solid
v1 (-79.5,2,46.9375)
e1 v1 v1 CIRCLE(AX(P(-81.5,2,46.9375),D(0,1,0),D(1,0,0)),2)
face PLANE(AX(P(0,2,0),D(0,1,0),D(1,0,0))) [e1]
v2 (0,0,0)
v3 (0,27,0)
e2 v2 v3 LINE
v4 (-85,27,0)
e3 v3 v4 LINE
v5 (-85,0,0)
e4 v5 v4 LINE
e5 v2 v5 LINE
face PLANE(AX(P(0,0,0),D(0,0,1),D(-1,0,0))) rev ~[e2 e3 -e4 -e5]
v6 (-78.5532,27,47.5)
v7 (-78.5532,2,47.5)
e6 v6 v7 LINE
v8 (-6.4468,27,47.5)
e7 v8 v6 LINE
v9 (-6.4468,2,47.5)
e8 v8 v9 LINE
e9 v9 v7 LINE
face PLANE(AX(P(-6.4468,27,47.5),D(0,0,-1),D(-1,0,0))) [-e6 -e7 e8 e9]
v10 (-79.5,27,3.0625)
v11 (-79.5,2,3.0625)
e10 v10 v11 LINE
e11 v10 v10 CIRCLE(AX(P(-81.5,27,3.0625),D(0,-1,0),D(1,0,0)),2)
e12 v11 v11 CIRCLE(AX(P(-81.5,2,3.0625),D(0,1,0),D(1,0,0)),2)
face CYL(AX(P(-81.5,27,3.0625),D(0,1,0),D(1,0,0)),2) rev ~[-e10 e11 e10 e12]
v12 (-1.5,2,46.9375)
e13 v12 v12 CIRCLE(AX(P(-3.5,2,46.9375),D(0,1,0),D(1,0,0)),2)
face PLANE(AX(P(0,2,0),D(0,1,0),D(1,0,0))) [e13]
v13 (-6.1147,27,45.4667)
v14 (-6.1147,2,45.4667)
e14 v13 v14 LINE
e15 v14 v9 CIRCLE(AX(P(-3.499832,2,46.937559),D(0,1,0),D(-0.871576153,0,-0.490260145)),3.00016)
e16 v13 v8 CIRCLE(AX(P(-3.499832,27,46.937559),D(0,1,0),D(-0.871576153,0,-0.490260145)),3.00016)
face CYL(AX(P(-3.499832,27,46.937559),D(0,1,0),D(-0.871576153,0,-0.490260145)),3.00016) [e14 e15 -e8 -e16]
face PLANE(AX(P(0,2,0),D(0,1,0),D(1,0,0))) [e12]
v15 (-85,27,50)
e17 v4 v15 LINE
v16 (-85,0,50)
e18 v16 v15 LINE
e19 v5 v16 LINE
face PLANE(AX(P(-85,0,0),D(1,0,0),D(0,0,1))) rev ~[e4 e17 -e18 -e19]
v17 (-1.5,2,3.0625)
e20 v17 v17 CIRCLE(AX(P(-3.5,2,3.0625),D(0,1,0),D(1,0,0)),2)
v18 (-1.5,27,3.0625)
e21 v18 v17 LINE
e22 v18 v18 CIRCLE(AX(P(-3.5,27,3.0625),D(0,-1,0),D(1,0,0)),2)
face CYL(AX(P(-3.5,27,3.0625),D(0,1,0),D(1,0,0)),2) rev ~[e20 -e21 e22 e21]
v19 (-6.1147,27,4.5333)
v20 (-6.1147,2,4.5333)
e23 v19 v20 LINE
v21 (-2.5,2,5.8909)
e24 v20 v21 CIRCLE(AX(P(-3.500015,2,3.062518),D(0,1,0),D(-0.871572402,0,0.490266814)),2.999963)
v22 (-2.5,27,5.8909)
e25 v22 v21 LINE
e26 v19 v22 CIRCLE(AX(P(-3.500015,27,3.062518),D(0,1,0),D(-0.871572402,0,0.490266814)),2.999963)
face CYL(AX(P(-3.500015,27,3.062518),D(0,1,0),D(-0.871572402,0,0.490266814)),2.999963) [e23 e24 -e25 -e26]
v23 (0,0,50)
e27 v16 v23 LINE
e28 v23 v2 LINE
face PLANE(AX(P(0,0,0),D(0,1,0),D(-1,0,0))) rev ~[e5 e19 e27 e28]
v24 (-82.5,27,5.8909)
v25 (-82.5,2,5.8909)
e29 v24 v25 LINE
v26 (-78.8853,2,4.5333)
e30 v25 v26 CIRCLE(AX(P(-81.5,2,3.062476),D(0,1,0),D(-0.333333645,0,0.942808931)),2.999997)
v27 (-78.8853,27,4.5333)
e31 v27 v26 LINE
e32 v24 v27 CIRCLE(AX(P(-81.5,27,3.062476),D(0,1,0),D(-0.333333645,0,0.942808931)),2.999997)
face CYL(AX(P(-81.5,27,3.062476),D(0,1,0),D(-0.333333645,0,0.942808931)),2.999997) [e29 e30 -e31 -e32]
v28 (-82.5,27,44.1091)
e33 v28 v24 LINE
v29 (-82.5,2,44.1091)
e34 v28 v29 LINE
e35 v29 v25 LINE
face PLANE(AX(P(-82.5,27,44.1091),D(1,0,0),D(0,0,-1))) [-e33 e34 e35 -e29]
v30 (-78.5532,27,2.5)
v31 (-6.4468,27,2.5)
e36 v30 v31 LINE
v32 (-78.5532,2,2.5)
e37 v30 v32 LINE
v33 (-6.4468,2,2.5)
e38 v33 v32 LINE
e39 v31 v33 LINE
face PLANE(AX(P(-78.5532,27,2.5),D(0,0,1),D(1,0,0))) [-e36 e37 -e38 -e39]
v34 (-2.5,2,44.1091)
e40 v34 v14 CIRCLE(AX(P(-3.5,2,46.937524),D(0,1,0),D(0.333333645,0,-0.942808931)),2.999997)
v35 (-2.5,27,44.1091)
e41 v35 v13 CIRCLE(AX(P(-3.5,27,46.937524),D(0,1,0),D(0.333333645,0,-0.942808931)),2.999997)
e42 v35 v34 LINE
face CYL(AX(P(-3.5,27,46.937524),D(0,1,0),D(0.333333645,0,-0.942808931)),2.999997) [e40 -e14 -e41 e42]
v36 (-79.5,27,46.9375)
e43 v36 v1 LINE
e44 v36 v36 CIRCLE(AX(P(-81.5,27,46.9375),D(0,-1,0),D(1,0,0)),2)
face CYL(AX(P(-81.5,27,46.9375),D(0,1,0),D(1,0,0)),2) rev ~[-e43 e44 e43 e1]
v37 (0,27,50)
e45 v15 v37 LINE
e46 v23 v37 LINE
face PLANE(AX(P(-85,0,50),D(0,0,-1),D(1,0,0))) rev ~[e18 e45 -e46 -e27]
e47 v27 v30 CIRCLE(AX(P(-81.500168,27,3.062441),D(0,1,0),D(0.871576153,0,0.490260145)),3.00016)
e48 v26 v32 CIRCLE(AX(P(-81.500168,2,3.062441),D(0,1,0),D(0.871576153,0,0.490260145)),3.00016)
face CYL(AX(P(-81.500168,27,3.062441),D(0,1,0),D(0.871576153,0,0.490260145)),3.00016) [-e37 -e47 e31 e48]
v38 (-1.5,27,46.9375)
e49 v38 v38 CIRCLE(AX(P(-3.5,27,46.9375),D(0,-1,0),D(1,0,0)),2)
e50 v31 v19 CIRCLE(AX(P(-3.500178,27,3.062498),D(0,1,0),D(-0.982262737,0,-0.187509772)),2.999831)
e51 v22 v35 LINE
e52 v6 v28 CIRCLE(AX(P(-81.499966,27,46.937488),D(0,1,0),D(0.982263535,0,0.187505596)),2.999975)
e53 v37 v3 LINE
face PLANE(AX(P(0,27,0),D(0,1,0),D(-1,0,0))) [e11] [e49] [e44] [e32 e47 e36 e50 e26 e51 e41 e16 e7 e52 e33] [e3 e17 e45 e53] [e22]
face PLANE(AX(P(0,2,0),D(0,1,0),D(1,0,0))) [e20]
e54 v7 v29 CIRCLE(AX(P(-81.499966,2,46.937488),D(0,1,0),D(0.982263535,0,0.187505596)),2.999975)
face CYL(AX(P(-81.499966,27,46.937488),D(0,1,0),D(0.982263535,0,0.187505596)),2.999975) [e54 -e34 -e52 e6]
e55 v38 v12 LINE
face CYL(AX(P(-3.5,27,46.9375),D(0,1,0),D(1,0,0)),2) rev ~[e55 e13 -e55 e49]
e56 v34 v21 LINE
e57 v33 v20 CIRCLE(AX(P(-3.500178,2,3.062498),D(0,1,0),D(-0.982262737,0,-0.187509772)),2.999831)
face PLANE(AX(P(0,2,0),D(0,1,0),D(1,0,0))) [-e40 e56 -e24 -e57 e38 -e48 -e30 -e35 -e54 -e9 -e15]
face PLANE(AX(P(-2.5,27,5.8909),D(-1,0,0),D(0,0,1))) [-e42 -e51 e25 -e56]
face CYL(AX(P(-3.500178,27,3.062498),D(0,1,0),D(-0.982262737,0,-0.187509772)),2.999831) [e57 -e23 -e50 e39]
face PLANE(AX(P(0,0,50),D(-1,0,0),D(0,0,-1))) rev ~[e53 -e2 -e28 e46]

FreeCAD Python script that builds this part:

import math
import FreeCAD as App
import Part
import Sketcher
from FreeCAD import Vector
Q = App.Units.Quantity

doc = App.newDocument("Part")
body = doc.addObject("PartDesign::Body", "Body")

# Sketch on XZ plane
sketch1 = doc.addObject("Sketcher::SketchObject", "Sketch")
body.addObject(sketch1)
sketch1.AttachmentSupport = (doc.XZ_Plane, [""])
sketch1.MapMode = "FlatFace"
sketch1.addGeometry([
    Part.LineSegment(Vector(0, 50, 0), Vector(0, 0, 0)),
    Part.LineSegment(Vector(0, 0, 0), Vector(-85, 0, 0)),
    Part.LineSegment(Vector(-85, 0, 0), Vector(-85, 50, 0)),
    Part.LineSegment(Vector(-85, 50, 0), Vector(0, 50, 0)),
], False)
sketch1.addConstraint([
    Sketcher.Constraint("Coincident", 0, 2, 1, 1),
    Sketcher.Constraint("Coincident", 1, 2, 2, 1),
    Sketcher.Constraint("Coincident", 2, 2, 3, 1),
    Sketcher.Constraint("Coincident", 3, 2, 0, 1),
    Sketcher.Constraint("Vertical", 0),
    Sketcher.Constraint("Horizontal", 1),
    Sketcher.Constraint("Vertical", 2),
    Sketcher.Constraint("Horizontal", 3),
    Sketcher.Constraint("Coincident", 0, 2, -1, 1),
    Sketcher.Constraint("DistanceX", 1, 2, 1, 1, Q("85 mm")),
    Sketcher.Constraint("DistanceY", 0, 2, 0, 1, Q("50 mm")),
])
pad1 = doc.addObject("PartDesign::Pad", "Pad")
body.addObject(pad1)
pad1.Profile = sketch1
pad1.Length = 27
pad1.Reversed = True

# Sketch on XZ plane
sketch2 = doc.addObject("Sketcher::SketchObject", "Sketch001")
body.addObject(sketch2)
sketch2.AttachmentSupport = (doc.XZ_Plane, [""])
sketch2.MapMode = "FlatFace"
sketch2.AttachmentOffset = App.Placement(Vector(0, 0, -27), App.Rotation())
sketch2.addGeometry([
    Part.Circle(Vector(-81.5, 3.1, 0), Vector(0, 0, 1), 2),  # 0
    Part.LineSegment(Vector(-6.4, 2.5, 0), Vector(-78.6, 2.5, 0)),  # 1
    Part.ArcOfCircle(Part.Circle(Vector(-81.5, 3.1, 0), Vector(0, 0, 1), 3), math.radians(-11), math.radians(29)),  # 2
    Part.ArcOfCircle(Part.Circle(Vector(-81.5, 3.1, 0), Vector(0, 0, 1), 3), math.radians(29), math.radians(109)),  # 3
    Part.LineSegment(Vector(-82.5, 5.9, 0), Vector(-82.5, 44.1, 0)),  # 4
    Part.ArcOfCircle(Part.Circle(Vector(-81.5, 46.9, 0), Vector(0, 0, 1), 3), math.radians(-109), math.radians(11)),  # 5
    Part.LineSegment(Vector(-78.6, 47.5, 0), Vector(-6.4, 47.5, 0)),  # 6
    Part.ArcOfCircle(Part.Circle(Vector(-3.5, 46.9, 0), Vector(0, 0, 1), 3), math.radians(169), math.radians(209)),  # 7
    Part.ArcOfCircle(Part.Circle(Vector(-3.5, 46.9, 0), Vector(0, 0, 1), 3), math.radians(-151), math.radians(-71)),  # 8
    Part.LineSegment(Vector(-2.5, 44.1, 0), Vector(-2.5, 5.9, 0)),  # 9
    Part.ArcOfCircle(Part.Circle(Vector(-3.5, 3.1, 0), Vector(0, 0, 1), 3), math.radians(71), math.radians(151)),  # 10
    Part.ArcOfCircle(Part.Circle(Vector(-3.5, 3.1, 0), Vector(0, 0, 1), 3), math.radians(151), math.radians(191)),  # 11
    Part.Circle(Vector(-81.5, 46.9, 0), Vector(0, 0, 1), 2),  # 12
    Part.Circle(Vector(-3.5, 3.1, 0), Vector(0, 0, 1), 2),  # 13
    Part.Circle(Vector(-3.5, 46.9, 0), Vector(0, 0, 1), 2),  # 14
], False)
sketch2.addConstraint([
    Sketcher.Constraint("Coincident", 1, 2, 2, 1),
    Sketcher.Constraint("Tangent", 2, 2, 3, 1),
    Sketcher.Constraint("Coincident", 3, 2, 4, 1),
    Sketcher.Constraint("Coincident", 4, 2, 5, 1),
    Sketcher.Constraint("Coincident", 5, 2, 6, 1),
    Sketcher.Constraint("Coincident", 6, 2, 7, 1),
    Sketcher.Constraint("Tangent", 7, 2, 8, 1),
    Sketcher.Constraint("Coincident", 8, 2, 9, 1),
    Sketcher.Constraint("Coincident", 9, 2, 10, 1),
    Sketcher.Constraint("Tangent", 10, 2, 11, 1),
    Sketcher.Constraint("Coincident", 11, 2, 1, 1),
    Sketcher.Constraint("Horizontal", 1),
    Sketcher.Constraint("Vertical", 4),
    Sketcher.Constraint("Horizontal", 6),
    Sketcher.Constraint("Vertical", 9),
    Sketcher.Constraint("Coincident", 2, 3, 0, 3),
    Sketcher.Constraint("Coincident", 12, 3, 5, 3),
    Sketcher.Constraint("Coincident", 13, 3, 10, 3),
    Sketcher.Constraint("Coincident", 14, 3, 7, 3),
    Sketcher.Constraint("Equal", 2, 3),
    Sketcher.Constraint("Equal", 3, 5),
    Sketcher.Constraint("Equal", 5, 7),
    Sketcher.Constraint("Equal", 7, 8),
    Sketcher.Constraint("Equal", 8, 10),
    Sketcher.Constraint("Equal", 10, 11),
    Sketcher.Constraint("Equal", 0, 12),
    Sketcher.Constraint("Equal", 12, 13),
    Sketcher.Constraint("Equal", 13, 14),
    Sketcher.Constraint("Horizontal", 5, 3, 7, 3),
    Sketcher.Constraint("Horizontal", 3, 3, 10, 3),
    Sketcher.Constraint("Horizontal", 4, 2, 8, 2),
    Sketcher.Constraint("Horizontal", 3, 2, 9, 2),
    Sketcher.Constraint("Horizontal", 2, 2, 10, 2),
    Sketcher.Constraint("Vertical", 3, 3, 5, 3),
    Sketcher.Constraint("Vertical", 1, 2, 5, 2),
    Sketcher.Constraint("Vertical", 7, 2, 10, 2),
    Sketcher.Constraint("Diameter", 0, Q("4 mm")),
    Sketcher.Constraint("Radius", 2, Q("3 mm")),
    Sketcher.Constraint("DistanceX", 3, 2, 0, 3, Q("1 mm")),
    Sketcher.Constraint("DistanceY", -1, 1, 1, 2, Q("2.5 mm")),
    Sketcher.Constraint("DistanceX", 8, 2, -1, 1, Q("2.5 mm")),
    Sketcher.Constraint("DistanceX", 5, 3, 7, 3, Q("78 mm")),
    Sketcher.Constraint("DistanceY", -1, 1, 5, 2, Q("47.5 mm")),
    Sketcher.Constraint("DistanceX", 1, 2, 1, 1, Q("72.1064 mm")),
    Sketcher.Constraint("DistanceX", 2, 2, 1, 2, Q("0.332 mm")),
])
pocket1 = doc.addObject("PartDesign::Pocket", "Pocket")
body.addObject(pocket1)
pocket1.Profile = sketch2
pocket1.Length = 25
pocket1.Reversed = True

doc.recompute()
